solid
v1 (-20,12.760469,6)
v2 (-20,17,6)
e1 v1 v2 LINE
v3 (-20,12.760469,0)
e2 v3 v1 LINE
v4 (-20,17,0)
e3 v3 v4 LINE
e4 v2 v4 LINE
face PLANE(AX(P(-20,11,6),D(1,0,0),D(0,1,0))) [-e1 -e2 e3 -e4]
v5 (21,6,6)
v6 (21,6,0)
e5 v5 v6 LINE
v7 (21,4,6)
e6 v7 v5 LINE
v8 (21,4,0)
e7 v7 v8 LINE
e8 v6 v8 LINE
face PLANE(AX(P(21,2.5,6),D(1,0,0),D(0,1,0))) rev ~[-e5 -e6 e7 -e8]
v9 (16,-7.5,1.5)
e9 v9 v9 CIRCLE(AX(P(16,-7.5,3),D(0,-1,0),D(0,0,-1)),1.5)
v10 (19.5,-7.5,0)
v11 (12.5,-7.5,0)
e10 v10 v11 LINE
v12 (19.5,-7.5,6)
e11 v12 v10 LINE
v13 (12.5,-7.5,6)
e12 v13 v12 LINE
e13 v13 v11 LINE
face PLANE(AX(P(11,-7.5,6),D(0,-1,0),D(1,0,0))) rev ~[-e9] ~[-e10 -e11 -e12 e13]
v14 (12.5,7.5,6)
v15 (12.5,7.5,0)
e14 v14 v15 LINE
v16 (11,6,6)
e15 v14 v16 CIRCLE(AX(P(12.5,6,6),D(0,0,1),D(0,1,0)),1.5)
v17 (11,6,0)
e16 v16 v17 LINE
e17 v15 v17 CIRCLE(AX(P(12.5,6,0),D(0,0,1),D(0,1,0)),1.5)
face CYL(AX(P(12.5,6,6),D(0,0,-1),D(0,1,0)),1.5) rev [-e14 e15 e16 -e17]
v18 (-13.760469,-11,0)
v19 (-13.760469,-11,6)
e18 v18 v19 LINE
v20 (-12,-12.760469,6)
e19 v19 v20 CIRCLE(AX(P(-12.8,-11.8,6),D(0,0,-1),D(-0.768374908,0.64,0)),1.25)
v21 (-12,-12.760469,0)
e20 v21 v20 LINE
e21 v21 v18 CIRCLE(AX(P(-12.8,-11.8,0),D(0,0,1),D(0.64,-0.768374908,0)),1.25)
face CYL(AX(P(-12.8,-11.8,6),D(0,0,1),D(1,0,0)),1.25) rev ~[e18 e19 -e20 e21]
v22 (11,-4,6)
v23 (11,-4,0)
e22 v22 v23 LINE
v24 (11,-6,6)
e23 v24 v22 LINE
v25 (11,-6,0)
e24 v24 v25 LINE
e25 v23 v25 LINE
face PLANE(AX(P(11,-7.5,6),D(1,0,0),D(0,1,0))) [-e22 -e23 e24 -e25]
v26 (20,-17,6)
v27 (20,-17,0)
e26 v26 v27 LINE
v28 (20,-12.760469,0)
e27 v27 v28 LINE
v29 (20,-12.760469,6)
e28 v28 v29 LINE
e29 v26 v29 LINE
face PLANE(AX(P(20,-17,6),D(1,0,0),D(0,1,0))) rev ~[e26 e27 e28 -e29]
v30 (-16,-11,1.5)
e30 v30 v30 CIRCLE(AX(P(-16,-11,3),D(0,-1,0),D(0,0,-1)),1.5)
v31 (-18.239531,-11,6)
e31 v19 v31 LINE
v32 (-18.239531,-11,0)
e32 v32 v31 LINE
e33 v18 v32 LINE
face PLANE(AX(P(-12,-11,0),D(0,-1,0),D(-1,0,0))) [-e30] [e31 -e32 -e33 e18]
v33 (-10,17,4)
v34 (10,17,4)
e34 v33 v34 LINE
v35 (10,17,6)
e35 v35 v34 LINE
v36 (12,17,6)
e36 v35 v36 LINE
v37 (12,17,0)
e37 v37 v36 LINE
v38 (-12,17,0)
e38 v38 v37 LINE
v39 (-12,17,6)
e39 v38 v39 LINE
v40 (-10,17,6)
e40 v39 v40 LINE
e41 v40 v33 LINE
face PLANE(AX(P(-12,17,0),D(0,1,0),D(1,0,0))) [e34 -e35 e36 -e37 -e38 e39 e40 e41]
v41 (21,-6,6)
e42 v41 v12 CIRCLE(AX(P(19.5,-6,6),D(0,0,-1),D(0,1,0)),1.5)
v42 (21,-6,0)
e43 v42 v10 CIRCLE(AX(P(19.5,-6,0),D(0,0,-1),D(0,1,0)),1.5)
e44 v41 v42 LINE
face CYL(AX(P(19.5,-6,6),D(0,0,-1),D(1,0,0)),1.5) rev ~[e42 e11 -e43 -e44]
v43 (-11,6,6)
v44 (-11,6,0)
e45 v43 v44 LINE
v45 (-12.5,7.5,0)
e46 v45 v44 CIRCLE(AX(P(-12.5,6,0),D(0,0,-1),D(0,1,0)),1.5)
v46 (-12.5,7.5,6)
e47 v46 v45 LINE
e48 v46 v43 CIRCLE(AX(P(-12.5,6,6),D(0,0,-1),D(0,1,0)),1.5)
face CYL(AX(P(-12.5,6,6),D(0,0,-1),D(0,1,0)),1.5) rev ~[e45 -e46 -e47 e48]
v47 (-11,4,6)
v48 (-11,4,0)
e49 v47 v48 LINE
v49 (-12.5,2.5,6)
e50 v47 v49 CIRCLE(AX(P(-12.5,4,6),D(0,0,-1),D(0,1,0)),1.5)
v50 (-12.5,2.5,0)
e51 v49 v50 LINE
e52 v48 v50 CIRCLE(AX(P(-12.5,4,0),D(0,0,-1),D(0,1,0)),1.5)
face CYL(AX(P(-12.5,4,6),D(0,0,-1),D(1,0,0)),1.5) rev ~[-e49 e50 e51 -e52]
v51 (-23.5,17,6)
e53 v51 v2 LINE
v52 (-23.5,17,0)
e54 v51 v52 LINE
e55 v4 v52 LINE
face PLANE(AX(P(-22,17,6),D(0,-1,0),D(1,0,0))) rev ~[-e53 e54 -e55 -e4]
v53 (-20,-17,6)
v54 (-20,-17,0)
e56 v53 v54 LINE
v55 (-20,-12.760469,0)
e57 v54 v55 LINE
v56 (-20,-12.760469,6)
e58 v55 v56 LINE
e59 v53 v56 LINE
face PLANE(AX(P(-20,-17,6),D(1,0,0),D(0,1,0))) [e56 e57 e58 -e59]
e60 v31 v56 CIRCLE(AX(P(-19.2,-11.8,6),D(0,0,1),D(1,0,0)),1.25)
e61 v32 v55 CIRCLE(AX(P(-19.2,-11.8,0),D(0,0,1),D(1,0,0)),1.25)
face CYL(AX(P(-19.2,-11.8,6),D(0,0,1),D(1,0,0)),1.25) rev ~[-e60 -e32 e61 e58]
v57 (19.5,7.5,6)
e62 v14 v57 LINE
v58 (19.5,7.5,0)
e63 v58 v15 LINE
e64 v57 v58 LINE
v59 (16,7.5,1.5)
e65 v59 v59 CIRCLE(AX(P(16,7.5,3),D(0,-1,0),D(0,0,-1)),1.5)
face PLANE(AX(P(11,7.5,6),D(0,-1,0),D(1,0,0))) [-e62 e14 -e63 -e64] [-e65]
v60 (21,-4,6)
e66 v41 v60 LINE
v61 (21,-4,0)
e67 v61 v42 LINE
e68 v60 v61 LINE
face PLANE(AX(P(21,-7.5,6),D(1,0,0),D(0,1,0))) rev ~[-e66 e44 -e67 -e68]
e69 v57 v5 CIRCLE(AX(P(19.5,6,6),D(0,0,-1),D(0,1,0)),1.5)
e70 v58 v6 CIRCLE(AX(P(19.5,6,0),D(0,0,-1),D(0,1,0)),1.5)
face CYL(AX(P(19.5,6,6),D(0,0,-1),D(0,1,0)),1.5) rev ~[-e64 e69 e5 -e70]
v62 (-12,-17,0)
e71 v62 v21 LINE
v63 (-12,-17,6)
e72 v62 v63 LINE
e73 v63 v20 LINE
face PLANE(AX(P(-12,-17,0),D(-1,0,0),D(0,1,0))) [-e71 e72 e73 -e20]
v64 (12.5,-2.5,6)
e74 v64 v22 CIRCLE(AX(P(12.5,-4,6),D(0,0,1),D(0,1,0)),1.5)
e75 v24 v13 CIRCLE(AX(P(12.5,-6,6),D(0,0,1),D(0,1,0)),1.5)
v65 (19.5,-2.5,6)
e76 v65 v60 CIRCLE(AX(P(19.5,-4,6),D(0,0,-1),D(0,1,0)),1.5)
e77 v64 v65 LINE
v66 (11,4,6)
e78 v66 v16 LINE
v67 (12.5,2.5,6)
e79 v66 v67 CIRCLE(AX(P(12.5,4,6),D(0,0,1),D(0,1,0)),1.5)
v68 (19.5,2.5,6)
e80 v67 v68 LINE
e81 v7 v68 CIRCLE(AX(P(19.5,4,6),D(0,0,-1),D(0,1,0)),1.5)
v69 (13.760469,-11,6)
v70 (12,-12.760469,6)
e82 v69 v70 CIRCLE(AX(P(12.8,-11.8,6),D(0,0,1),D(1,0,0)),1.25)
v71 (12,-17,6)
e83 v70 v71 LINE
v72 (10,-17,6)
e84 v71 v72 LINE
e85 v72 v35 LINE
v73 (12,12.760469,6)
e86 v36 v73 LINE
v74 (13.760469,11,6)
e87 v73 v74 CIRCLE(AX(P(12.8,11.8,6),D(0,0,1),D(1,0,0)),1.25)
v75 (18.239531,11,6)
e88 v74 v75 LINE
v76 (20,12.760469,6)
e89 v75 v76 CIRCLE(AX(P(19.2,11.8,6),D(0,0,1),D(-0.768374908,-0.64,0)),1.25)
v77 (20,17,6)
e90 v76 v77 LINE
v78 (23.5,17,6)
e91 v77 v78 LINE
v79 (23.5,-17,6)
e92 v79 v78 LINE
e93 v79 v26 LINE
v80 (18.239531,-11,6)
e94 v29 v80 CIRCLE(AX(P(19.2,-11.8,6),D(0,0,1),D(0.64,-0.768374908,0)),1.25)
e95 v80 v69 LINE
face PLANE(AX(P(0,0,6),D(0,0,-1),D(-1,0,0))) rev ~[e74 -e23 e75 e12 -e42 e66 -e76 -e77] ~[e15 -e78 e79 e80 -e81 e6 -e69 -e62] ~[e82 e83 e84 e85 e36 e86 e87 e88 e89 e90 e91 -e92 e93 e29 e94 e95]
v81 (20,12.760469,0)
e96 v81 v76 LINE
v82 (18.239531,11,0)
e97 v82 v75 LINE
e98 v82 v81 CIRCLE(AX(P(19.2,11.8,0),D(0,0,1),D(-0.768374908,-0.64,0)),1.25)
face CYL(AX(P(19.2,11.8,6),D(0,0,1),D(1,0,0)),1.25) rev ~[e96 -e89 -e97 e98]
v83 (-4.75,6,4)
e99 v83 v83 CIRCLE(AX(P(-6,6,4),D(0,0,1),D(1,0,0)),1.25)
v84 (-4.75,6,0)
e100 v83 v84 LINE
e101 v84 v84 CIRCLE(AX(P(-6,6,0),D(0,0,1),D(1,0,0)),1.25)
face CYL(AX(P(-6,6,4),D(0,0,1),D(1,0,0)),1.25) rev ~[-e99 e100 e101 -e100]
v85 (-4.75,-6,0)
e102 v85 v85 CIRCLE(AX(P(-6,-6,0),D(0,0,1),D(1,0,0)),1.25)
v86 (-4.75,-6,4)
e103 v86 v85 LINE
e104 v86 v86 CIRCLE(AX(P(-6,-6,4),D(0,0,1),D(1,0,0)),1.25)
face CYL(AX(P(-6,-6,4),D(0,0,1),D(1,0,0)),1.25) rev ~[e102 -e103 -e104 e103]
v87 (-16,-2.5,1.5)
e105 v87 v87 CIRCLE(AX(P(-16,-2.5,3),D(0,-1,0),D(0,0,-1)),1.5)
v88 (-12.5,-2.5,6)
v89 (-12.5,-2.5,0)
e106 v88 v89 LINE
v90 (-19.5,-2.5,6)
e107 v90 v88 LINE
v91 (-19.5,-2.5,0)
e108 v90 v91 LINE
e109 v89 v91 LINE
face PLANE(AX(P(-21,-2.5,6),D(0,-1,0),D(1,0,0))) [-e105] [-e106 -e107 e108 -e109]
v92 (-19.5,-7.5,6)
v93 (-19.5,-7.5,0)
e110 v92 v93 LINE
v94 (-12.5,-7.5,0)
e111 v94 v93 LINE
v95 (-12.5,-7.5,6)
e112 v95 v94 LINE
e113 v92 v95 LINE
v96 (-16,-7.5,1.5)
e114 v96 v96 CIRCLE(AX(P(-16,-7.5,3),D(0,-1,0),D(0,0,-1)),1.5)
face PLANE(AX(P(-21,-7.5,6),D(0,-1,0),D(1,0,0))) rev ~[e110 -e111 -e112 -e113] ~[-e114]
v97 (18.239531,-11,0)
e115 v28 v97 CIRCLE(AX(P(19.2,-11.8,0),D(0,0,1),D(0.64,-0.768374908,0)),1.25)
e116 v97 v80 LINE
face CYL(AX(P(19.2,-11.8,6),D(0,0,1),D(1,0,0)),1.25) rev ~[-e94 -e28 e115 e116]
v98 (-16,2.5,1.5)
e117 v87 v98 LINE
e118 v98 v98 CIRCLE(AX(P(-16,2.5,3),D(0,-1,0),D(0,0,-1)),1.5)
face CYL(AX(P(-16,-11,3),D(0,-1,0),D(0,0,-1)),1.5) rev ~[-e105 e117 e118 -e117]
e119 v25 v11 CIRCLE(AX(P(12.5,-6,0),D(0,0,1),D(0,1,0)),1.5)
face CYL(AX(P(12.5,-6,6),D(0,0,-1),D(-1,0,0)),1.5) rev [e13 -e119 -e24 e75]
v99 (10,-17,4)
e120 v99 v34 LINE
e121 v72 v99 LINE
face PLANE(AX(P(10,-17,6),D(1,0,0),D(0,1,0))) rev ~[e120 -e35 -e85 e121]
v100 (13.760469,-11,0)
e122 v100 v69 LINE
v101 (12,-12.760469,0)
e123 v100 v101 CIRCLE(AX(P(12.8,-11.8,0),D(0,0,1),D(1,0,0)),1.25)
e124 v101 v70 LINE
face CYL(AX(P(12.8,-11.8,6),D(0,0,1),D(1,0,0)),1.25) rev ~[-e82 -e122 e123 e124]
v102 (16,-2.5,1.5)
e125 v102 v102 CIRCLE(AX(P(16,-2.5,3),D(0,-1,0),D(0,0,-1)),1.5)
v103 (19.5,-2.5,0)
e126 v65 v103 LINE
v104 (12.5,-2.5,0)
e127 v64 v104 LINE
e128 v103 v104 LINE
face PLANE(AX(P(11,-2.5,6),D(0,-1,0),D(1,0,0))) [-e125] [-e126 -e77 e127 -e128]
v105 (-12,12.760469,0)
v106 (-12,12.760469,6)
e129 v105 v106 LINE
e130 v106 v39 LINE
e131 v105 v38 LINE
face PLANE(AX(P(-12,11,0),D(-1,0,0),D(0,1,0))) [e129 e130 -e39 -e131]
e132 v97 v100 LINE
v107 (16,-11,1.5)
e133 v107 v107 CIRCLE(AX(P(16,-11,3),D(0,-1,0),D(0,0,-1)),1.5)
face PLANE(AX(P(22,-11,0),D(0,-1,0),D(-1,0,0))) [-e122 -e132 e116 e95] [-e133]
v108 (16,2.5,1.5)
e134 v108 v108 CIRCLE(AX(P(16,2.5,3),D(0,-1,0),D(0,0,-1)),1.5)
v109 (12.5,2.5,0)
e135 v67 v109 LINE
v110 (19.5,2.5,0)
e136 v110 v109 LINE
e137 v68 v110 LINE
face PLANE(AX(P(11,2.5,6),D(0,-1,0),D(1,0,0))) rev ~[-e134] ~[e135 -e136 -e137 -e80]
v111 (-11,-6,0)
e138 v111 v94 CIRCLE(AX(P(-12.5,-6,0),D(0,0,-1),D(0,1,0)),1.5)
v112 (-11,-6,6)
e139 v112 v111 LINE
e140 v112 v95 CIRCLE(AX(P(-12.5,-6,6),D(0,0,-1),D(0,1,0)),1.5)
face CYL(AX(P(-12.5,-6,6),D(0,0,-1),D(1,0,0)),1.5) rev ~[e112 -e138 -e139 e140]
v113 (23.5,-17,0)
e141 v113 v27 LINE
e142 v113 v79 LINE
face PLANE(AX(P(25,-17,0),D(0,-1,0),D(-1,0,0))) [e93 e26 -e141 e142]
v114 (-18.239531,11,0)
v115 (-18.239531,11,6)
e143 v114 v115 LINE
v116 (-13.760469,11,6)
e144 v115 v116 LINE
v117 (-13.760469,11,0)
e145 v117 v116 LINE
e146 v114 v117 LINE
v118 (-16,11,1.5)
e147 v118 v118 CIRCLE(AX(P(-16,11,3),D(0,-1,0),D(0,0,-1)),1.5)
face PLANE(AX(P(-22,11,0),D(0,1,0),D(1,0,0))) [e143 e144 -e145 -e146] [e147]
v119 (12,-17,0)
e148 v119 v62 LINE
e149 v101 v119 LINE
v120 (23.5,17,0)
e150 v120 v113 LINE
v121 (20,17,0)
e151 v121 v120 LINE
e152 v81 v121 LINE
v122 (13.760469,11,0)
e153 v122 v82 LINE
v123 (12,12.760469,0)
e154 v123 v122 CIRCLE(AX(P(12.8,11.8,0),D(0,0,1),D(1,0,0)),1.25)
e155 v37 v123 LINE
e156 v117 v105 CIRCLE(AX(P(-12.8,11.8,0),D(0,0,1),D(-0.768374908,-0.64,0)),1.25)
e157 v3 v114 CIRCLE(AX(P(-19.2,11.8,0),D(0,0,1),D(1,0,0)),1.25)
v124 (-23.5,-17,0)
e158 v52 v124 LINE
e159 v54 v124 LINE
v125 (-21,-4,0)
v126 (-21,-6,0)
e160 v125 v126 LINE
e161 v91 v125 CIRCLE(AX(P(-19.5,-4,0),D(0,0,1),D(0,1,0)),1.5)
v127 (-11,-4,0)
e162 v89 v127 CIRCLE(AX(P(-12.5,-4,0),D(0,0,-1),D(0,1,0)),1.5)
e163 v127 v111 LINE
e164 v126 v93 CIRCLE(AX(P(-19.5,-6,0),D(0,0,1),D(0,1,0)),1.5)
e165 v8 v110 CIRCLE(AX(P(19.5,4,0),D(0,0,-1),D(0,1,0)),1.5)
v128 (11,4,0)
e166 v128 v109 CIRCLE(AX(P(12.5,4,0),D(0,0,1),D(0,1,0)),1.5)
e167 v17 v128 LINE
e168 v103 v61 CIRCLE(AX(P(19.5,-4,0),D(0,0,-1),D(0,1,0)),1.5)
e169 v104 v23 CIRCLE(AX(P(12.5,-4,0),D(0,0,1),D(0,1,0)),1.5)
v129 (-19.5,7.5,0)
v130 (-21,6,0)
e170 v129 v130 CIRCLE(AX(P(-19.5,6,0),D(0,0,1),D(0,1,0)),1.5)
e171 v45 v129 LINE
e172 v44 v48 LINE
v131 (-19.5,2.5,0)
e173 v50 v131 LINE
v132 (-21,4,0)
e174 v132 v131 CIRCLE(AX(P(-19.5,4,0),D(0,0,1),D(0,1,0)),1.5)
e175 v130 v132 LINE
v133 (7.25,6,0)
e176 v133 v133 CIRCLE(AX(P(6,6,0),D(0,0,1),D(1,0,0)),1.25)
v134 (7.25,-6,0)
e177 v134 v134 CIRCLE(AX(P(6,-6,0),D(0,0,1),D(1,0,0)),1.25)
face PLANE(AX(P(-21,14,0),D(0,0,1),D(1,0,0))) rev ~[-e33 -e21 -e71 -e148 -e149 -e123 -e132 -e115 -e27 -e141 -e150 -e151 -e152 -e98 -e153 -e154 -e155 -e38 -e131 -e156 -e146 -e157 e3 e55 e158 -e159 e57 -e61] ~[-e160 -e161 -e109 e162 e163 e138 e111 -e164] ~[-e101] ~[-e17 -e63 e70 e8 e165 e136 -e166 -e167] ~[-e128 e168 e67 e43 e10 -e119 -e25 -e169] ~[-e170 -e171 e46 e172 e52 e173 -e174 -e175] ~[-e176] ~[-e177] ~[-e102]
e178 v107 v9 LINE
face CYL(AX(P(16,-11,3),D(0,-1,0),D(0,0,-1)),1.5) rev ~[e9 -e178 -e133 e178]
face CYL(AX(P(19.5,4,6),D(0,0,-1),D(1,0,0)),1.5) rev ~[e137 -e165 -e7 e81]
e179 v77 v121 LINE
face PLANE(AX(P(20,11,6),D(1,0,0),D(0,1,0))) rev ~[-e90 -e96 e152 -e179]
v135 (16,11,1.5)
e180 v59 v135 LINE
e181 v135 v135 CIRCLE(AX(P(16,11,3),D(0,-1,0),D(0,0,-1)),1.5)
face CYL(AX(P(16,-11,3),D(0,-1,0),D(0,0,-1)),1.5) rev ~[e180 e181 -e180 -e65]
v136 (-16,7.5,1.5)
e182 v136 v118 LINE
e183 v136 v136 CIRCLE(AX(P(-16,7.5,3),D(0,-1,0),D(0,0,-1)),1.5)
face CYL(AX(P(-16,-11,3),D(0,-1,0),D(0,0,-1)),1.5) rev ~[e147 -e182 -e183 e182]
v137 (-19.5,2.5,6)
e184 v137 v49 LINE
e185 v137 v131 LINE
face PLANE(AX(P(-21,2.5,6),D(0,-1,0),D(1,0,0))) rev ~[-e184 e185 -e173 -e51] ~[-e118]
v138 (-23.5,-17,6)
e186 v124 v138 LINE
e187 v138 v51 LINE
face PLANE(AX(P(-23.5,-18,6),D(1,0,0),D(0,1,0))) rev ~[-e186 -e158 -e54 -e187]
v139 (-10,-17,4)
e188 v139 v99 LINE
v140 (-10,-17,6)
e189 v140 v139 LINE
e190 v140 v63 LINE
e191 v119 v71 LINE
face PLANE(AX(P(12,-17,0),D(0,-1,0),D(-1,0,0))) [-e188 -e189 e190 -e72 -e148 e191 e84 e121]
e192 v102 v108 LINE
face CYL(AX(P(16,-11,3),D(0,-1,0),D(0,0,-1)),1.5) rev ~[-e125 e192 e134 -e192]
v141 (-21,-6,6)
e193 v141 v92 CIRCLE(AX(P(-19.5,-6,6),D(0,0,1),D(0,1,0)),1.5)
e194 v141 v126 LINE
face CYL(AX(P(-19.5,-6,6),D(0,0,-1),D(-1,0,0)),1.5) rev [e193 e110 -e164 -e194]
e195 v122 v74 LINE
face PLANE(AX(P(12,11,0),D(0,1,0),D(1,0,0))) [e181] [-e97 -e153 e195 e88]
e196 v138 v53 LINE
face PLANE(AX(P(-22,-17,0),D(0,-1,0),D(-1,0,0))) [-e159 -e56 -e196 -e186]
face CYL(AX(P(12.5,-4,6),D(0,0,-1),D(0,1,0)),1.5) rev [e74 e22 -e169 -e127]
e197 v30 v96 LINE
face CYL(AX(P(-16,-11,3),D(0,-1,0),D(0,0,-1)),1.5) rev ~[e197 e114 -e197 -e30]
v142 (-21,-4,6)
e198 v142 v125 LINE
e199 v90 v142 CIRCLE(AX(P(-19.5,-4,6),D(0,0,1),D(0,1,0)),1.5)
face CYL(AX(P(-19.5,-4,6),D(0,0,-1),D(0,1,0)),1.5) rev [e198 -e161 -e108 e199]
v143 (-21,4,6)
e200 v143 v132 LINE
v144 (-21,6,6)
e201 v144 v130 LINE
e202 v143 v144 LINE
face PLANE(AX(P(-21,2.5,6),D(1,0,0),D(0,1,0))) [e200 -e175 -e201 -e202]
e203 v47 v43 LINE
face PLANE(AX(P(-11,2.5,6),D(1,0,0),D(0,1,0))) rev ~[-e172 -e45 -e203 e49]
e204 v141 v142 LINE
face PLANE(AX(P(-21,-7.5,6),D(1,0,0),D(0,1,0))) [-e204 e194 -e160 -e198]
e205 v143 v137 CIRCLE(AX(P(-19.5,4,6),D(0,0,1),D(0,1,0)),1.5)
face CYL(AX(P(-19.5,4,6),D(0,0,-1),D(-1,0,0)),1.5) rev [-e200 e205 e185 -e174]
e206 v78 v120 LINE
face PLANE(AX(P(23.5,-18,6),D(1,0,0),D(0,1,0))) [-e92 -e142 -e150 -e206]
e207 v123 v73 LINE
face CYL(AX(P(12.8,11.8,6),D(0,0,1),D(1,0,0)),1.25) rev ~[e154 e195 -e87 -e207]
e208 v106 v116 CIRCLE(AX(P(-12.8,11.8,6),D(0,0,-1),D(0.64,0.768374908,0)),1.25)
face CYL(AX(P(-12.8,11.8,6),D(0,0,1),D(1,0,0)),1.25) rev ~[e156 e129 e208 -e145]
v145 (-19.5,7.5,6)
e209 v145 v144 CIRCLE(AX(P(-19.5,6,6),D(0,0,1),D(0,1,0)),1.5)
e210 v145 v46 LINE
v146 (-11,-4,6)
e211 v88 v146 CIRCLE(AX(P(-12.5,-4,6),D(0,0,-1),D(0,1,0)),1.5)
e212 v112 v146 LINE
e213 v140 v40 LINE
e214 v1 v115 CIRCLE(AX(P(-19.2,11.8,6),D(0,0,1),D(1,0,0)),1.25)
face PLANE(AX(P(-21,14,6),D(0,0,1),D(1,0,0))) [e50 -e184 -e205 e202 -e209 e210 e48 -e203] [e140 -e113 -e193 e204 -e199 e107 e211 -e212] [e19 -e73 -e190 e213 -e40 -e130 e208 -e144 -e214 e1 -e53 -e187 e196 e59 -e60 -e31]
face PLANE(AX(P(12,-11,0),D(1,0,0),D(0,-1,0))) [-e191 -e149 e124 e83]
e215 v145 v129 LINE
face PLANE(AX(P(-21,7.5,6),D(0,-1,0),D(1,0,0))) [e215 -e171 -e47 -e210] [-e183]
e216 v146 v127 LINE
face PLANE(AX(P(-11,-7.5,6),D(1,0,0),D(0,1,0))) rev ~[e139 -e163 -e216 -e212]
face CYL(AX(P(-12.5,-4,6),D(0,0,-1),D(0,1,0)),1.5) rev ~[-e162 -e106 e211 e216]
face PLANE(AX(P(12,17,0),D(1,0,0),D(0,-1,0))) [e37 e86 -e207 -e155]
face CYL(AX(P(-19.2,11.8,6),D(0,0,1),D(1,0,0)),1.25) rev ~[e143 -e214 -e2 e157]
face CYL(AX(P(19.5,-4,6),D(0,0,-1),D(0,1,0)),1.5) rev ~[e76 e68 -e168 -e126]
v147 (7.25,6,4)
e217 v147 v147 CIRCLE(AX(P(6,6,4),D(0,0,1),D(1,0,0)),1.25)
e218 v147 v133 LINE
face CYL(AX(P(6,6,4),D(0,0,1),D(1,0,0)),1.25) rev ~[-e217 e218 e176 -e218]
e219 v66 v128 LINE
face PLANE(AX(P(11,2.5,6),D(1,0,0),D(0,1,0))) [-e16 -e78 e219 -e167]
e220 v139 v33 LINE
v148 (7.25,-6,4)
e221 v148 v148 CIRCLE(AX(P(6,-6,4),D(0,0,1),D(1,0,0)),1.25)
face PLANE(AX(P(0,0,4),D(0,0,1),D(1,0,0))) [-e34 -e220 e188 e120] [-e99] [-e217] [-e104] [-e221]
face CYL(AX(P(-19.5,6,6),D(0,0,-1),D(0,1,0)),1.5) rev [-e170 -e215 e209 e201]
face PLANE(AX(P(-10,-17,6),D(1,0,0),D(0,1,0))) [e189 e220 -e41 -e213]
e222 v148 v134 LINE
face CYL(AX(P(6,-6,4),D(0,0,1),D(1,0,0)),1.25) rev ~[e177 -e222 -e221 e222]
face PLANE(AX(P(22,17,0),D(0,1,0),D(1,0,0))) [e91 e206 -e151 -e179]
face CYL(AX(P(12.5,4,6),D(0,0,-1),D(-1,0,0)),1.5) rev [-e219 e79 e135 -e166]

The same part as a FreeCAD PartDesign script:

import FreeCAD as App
import Part
import Sketcher
from FreeCAD import Vector
Q = App.Units.Quantity


def edges_at(feature, points):
    """Names of the edges that pass closest to the given points."""
    edges = feature.Shape.Edges
    near = lambda p: min(range(len(edges)), key=lambda i: edges[i].distToShape(Part.Vertex(*p))[0])
    return sorted({f"Edge{near(p) + 1}" for p in points})

doc = App.newDocument("Part")
params = doc.addObject("Spreadsheet::Sheet", "Params")
for row, (alias, value) in enumerate([
    ("sketch1_width", "3 mm"),
    ("sketch1_width2", "10 mm"),
    ("sketch1_width3", "24 mm"),
    ("sketch1_height", "34 mm"),
    ("sketch1_height2", "6 mm"),
    ("pad1_length", "6 mm"),
    ("sketch2_width", "10 mm"),
    ("sketch2_height", "5 mm"),
    ("sketch3_diameter", "3 mm"),
    ("sketch4_width", "20 mm"),
    ("sketch4_height", "34 mm"),
    ("pocket3_length", "2 mm"),
    ("sketch5_diameter", "2.5 mm"),
    ("fillet_radius", "1.5 mm"),
    ("sketch6_height", "35 mm"),
    ("sketch6_width", "1.5 mm"),
    ("sketch7_width", "2 mm"),
    ("sketch7_height", "6 mm"),
    ("pad2_length", "6 mm"),
    ("sketch8_diameter", "2.5 mm"),
], start=1):
    params.set(f"A{row}", alias)
    params.set(f"B{row}", "=" + value)
    params.setAlias(f"B{row}", alias)

body = doc.addObject("PartDesign::Body", "Body")

sketch1 = body.newObject("Sketcher::SketchObject", "Sketch")
sketch1.AttachmentSupport = (doc.getObject("XY_Plane"), [""])
sketch1.MapMode = "FlatFace"
sketch1.addGeometry(Part.LineSegment(Vector(-25, 17, 0), Vector(-25, -17, 0)), False)
sketch1.addGeometry(Part.LineSegment(Vector(-25, -17, 0), Vector(-22, -17, 0)), False)
sketch1.addGeometry(Part.LineSegment(Vector(-22, -17, 0), Vector(-22, -11, 0)), False)
sketch1.addGeometry(Part.LineSegment(Vector(-22, -11, 0), Vector(-12, -11, 0)), False)
sketch1.addGeometry(Part.LineSegment(Vector(-12, -11, 0), Vector(-12, -17, 0)), False)
sketch1.addGeometry(Part.LineSegment(Vector(-12, -17, 0), Vector(12, -17, 0)), False)
sketch1.addGeometry(Part.LineSegment(Vector(12, -17, 0), Vector(12, -11, 0)), False)
sketch1.addGeometry(Part.LineSegment(Vector(12, -11, 0), Vector(22, -11, 0)), False)
sketch1.addGeometry(Part.LineSegment(Vector(22, -11, 0), Vector(22, -17, 0)), False)
sketch1.addGeometry(Part.LineSegment(Vector(22, -17, 0), Vector(25, -17, 0)), False)
sketch1.addGeometry(Part.LineSegment(Vector(25, -17, 0), Vector(25, 17, 0)), False)
sketch1.addGeometry(Part.LineSegment(Vector(25, 17, 0), Vector(22, 17, 0)), False)
sketch1.addGeometry(Part.LineSegment(Vector(22, 17, 0), Vector(22, 11, 0)), False)
sketch1.addGeometry(Part.LineSegment(Vector(22, 11, 0), Vector(12, 11, 0)), False)
sketch1.addGeometry(Part.LineSegment(Vector(12, 11, 0), Vector(12, 17, 0)), False)
sketch1.addGeometry(Part.LineSegment(Vector(12, 17, 0), Vector(-12, 17, 0)), False)
sketch1.addGeometry(Part.LineSegment(Vector(-12, 17, 0), Vector(-12, 11, 0)), False)
sketch1.addGeometry(Part.LineSegment(Vector(-12, 11, 0), Vector(-22, 11, 0)), False)
sketch1.addGeometry(Part.LineSegment(Vector(-22, 11, 0), Vector(-22, 17, 0)), False)
sketch1.addGeometry(Part.LineSegment(Vector(-22, 17, 0), Vector(-25, 17, 0)), False)
sketch1.addConstraint(Sketcher.Constraint("Coincident", 0, 2, 1, 1))
sketch1.addConstraint(Sketcher.Constraint("Coincident", 1, 2, 2, 1))
sketch1.addConstraint(Sketcher.Constraint("Coincident", 2, 2, 3, 1))
sketch1.addConstraint(Sketcher.Constraint("Coincident", 3, 2, 4, 1))
sketch1.addConstraint(Sketcher.Constraint("Coincident", 4, 2, 5, 1))
sketch1.addConstraint(Sketcher.Constraint("Coincident", 5, 2, 6, 1))
sketch1.addConstraint(Sketcher.Constraint("Coincident", 6, 2, 7, 1))
sketch1.addConstraint(Sketcher.Constraint("Coincident", 7, 2, 8, 1))
sketch1.addConstraint(Sketcher.Constraint("Coincident", 8, 2, 9, 1))
sketch1.addConstraint(Sketcher.Constraint("Coincident", 9, 2, 10, 1))
sketch1.addConstraint(Sketcher.Constraint("Coincident", 10, 2, 11, 1))
sketch1.addConstraint(Sketcher.Constraint("Coincident", 11, 2, 12, 1))
sketch1.addConstraint(Sketcher.Constraint("Coincident", 12, 2, 13, 1))
sketch1.addConstraint(Sketcher.Constraint("Coincident", 13, 2, 14, 1))
sketch1.addConstraint(Sketcher.Constraint("Coincident", 14, 2, 15, 1))
sketch1.addConstraint(Sketcher.Constraint("Coincident", 15, 2, 16, 1))
sketch1.addConstraint(Sketcher.Constraint("Coincident", 16, 2, 17, 1))
sketch1.addConstraint(Sketcher.Constraint("Coincident", 17, 2, 18, 1))
sketch1.addConstraint(Sketcher.Constraint("Coincident", 18, 2, 19, 1))
sketch1.addConstraint(Sketcher.Constraint("Coincident", 19, 2, 0, 1))
sketch1.addConstraint(Sketcher.Constraint("Vertical", 0))
sketch1.addConstraint(Sketcher.Constraint("Horizontal", 1))
sketch1.addConstraint(Sketcher.Constraint("Vertical", 2))
sketch1.addConstraint(Sketcher.Constraint("Horizontal", 3))
sketch1.addConstraint(Sketcher.Constraint("Vertical", 4))
sketch1.addConstraint(Sketcher.Constraint("Horizontal", 5))
sketch1.addConstraint(Sketcher.Constraint("Vertical", 6))
sketch1.addConstraint(Sketcher.Constraint("Horizontal", 7))
sketch1.addConstraint(Sketcher.Constraint("Vertical", 8))
sketch1.addConstraint(Sketcher.Constraint("Horizontal", 9))
sketch1.addConstraint(Sketcher.Constraint("Vertical", 10))
sketch1.addConstraint(Sketcher.Constraint("Horizontal", 11))
sketch1.addConstraint(Sketcher.Constraint("Vertical", 12))
sketch1.addConstraint(Sketcher.Constraint("Horizontal", 13))
sketch1.addConstraint(Sketcher.Constraint("Vertical", 14))
sketch1.addConstraint(Sketcher.Constraint("Horizontal", 15))
sketch1.addConstraint(Sketcher.Constraint("Vertical", 16))
sketch1.addConstraint(Sketcher.Constraint("Horizontal", 17))
sketch1.addConstraint(Sketcher.Constraint("Vertical", 18))
sketch1.addConstraint(Sketcher.Constraint("Horizontal", 19))
sketch1.addConstraint(Sketcher.Constraint("Symmetric", 0, 2, 10, 2, -1, 1))
sketch1.addConstraint(Sketcher.Constraint("Symmetric", 2, 2, 12, 2, -1, 1))
sketch1.addConstraint(Sketcher.Constraint("Symmetric", 4, 2, 14, 2, -1, 1))
sketch1.addConstraint(Sketcher.Constraint("Symmetric", 6, 2, 16, 2, -1, 1))
sketch1.addConstraint(Sketcher.Constraint("Symmetric", 8, 2, 18, 2, -1, 1))
sketch1.addConstraint(Sketcher.Constraint("Symmetric", 3, 2, 6, 2, -2))
sketch1.addConstraint(Sketcher.Constraint("Symmetric", 1, 2, 8, 2, -2))
sketch1.addConstraint(Sketcher.Constraint("Horizontal", 1, 2, 4, 2))
sketch1.addConstraint(Sketcher.Constraint("DistanceX", 1, 1, 1, 2, Q("3 mm")))
sketch1.addConstraint(Sketcher.Constraint("DistanceX", 3, 1, 3, 2, Q("10 mm")))
sketch1.addConstraint(Sketcher.Constraint("DistanceX", 5, 1, 5, 2, Q("24 mm")))
sketch1.addConstraint(Sketcher.Constraint("DistanceY", 0, 2, 0, 1, Q("34 mm")))
sketch1.addConstraint(Sketcher.Constraint("DistanceY", 2, 1, 2, 2, Q("6 mm")))
sketch1.setExpression("Constraints[48]", "Params.sketch1_width")
sketch1.setExpression("Constraints[49]", "Params.sketch1_width2")
sketch1.setExpression("Constraints[50]", "Params.sketch1_width3")
sketch1.setExpression("Constraints[51]", "Params.sketch1_height")
sketch1.setExpression("Constraints[52]", "Params.sketch1_height2")
pad1 = body.newObject("PartDesign::Pad", "Pad")
pad1.Profile = sketch1
pad1.setExpression("Length", "Params.pad1_length")

sketch2 = body.newObject("Sketcher::SketchObject", "Sketch001")
sketch2.AttachmentSupport = (doc.getObject("XY_Plane"), [""])
sketch2.MapMode = "FlatFace"
sketch2.AttachmentOffset = App.Placement(Vector(0, 0, 6), App.Rotation())
sketch2.addGeometry(Part.LineSegment(Vector(-21, 7.5, 0), Vector(-21, 2.5, 0)), False)
sketch2.addGeometry(Part.LineSegment(Vector(-21, 2.5, 0), Vector(-11, 2.5, 0)), False)
sketch2.addGeometry(Part.LineSegment(Vector(-11, 2.5, 0), Vector(-11, 7.5, 0)), False)
sketch2.addGeometry(Part.LineSegment(Vector(-11, 7.5, 0), Vector(-21, 7.5, 0)), False)
sketch2.addGeometry(Part.LineSegment(Vector(-21, -2.5, 0), Vector(-21, -7.5, 0)), False)
sketch2.addGeometry(Part.LineSegment(Vector(-21, -7.5, 0), Vector(-11, -7.5, 0)), False)
sketch2.addGeometry(Part.LineSegment(Vector(-11, -7.5, 0), Vector(-11, -2.5, 0)), False)
sketch2.addGeometry(Part.LineSegment(Vector(-11, -2.5, 0), Vector(-21, -2.5, 0)), False)
sketch2.addGeometry(Part.LineSegment(Vector(11, -2.5, 0), Vector(11, -7.5, 0)), False)
sketch2.addGeometry(Part.LineSegment(Vector(11, -7.5, 0), Vector(21, -7.5, 0)), False)
sketch2.addGeometry(Part.LineSegment(Vector(21, -7.5, 0), Vector(21, -2.5, 0)), False)
sketch2.addGeometry(Part.LineSegment(Vector(21, -2.5, 0), Vector(11, -2.5, 0)), False)
sketch2.addGeometry(Part.LineSegment(Vector(11, 7.5, 0), Vector(11, 2.5, 0)), False)
sketch2.addGeometry(Part.LineSegment(Vector(11, 2.5, 0), Vector(21, 2.5, 0)), False)
sketch2.addGeometry(Part.LineSegment(Vector(21, 2.5, 0), Vector(21, 7.5, 0)), False)
sketch2.addGeometry(Part.LineSegment(Vector(21, 7.5, 0), Vector(11, 7.5, 0)), False)
sketch2.addConstraint(Sketcher.Constraint("Coincident", 0, 2, 1, 1))
sketch2.addConstraint(Sketcher.Constraint("Coincident", 1, 2, 2, 1))
sketch2.addConstraint(Sketcher.Constraint("Coincident", 2, 2, 3, 1))
sketch2.addConstraint(Sketcher.Constraint("Coincident", 3, 2, 0, 1))
sketch2.addConstraint(Sketcher.Constraint("Coincident", 4, 2, 5, 1))
sketch2.addConstraint(Sketcher.Constraint("Coincident", 5, 2, 6, 1))
sketch2.addConstraint(Sketcher.Constraint("Coincident", 6, 2, 7, 1))
sketch2.addConstraint(Sketcher.Constraint("Coincident", 7, 2, 4, 1))
sketch2.addConstraint(Sketcher.Constraint("Coincident", 8, 2, 9, 1))
sketch2.addConstraint(Sketcher.Constraint("Coincident", 9, 2, 10, 1))
sketch2.addConstraint(Sketcher.Constraint("Coincident", 10, 2, 11, 1))
sketch2.addConstraint(Sketcher.Constraint("Coincident", 11, 2, 8, 1))
sketch2.addConstraint(Sketcher.Constraint("Coincident", 12, 2, 13, 1))
sketch2.addConstraint(Sketcher.Constraint("Coincident", 13, 2, 14, 1))
sketch2.addConstraint(Sketcher.Constraint("Coincident", 14, 2, 15, 1))
sketch2.addConstraint(Sketcher.Constraint("Coincident", 15, 2, 12, 1))
sketch2.addConstraint(Sketcher.Constraint("Vertical", 0))
sketch2.addConstraint(Sketcher.Constraint("Horizontal", 1))
sketch2.addConstraint(Sketcher.Constraint("Vertical", 2))
sketch2.addConstraint(Sketcher.Constraint("Horizontal", 3))
sketch2.addConstraint(Sketcher.Constraint("Vertical", 4))
sketch2.addConstraint(Sketcher.Constraint("Horizontal", 5))
sketch2.addConstraint(Sketcher.Constraint("Vertical", 6))
sketch2.addConstraint(Sketcher.Constraint("Horizontal", 7))
sketch2.addConstraint(Sketcher.Constraint("Vertical", 8))
sketch2.addConstraint(Sketcher.Constraint("Horizontal", 9))
sketch2.addConstraint(Sketcher.Constraint("Vertical", 10))
sketch2.addConstraint(Sketcher.Constraint("Horizontal", 11))
sketch2.addConstraint(Sketcher.Constraint("Vertical", 12))
sketch2.addConstraint(Sketcher.Constraint("Horizontal", 13))
sketch2.addConstraint(Sketcher.Constraint("Vertical", 14))
sketch2.addConstraint(Sketcher.Constraint("Horizontal", 15))
sketch2.addConstraint(Sketcher.Constraint("Symmetric", 2, 2, 8, 2, -1, 1))
sketch2.addConstraint(Sketcher.Constraint("Symmetric", 0, 2, 10, 2, -1, 1))
sketch2.addConstraint(Sketcher.Constraint("Symmetric", 6, 2, 12, 2, -1, 1))
sketch2.addConstraint(Sketcher.Constraint("Symmetric", 4, 2, 14, 2, -1, 1))
sketch2.addConstraint(Sketcher.Constraint("Symmetric", 5, 2, 8, 2, -2))
sketch2.addConstraint(Sketcher.Constraint("Symmetric", 7, 2, 10, 2, -2))
sketch2.addConstraint(Sketcher.Constraint("DistanceX", 1, 1, 1, 2, Q("10 mm")))
sketch2.addConstraint(Sketcher.Constraint("DistanceY", 0, 2, 0, 1, Q("5 mm")))
sketch2.addConstraint(Sketcher.Constraint("DistanceX", 0, 2, -1, 1, Q("21 mm")))
sketch2.addConstraint(Sketcher.Constraint("DistanceY", 4, 2, 0, 2, Q("10 mm")))
sketch2.setExpression("Constraints[38]", "Params.sketch2_width")
sketch2.setExpression("Constraints[39]", "Params.sketch2_height")
pocket1 = body.newObject("PartDesign::Pocket", "Pocket")
pocket1.Profile = sketch2
pocket1.Type = "ThroughAll"

sketch3 = body.newObject("Sketcher::SketchObject", "Sketch002")
sketch3.AttachmentSupport = (doc.getObject("XZ_Plane"), [""])
sketch3.MapMode = "FlatFace"
sketch3.AttachmentOffset = App.Placement(Vector(0, 0, 11), App.Rotation())
sketch3.addGeometry(Part.Circle(Vector(-16, 3, 0), Vector(0, 0, 1), 1.5), False)
sketch3.addGeometry(Part.Circle(Vector(16, 3, 0), Vector(0, 0, 1), 1.5), False)
sketch3.addConstraint(Sketcher.Constraint("Equal", 0, 1))
sketch3.addConstraint(Sketcher.Constraint("Symmetric", 0, 3, 1, 3, -2))
sketch3.addConstraint(Sketcher.Constraint("Diameter", 0, Q("3 mm")))
sketch3.addConstraint(Sketcher.Constraint("DistanceX", 0, 3, -1, 1, Q("16 mm")))
sketch3.addConstraint(Sketcher.Constraint("DistanceY", -1, 1, 0, 3, Q("3 mm")))
sketch3.setExpression("Constraints[2]", "Params.sketch3_diameter")
pocket2 = body.newObject("PartDesign::Pocket", "Pocket001")
pocket2.Profile = sketch3
pocket2.Type = "ThroughAll"

sketch4 = body.newObject("Sketcher::SketchObject", "Sketch003")
sketch4.AttachmentSupport = (doc.getObject("XY_Plane"), [""])
sketch4.MapMode = "FlatFace"
sketch4.AttachmentOffset = App.Placement(Vector(0, 0, 6), App.Rotation())
sketch4.addGeometry(Part.LineSegment(Vector(-10, 17, 0), Vector(-10, -17, 0)), False)
sketch4.addGeometry(Part.LineSegment(Vector(-10, -17, 0), Vector(10, -17, 0)), False)
sketch4.addGeometry(Part.LineSegment(Vector(10, -17, 0), Vector(10, 17, 0)), False)
sketch4.addGeometry(Part.LineSegment(Vector(10, 17, 0), Vector(-10, 17, 0)), False)
sketch4.addConstraint(Sketcher.Constraint("Coincident", 0, 2, 1, 1))
sketch4.addConstraint(Sketcher.Constraint("Coincident", 1, 2, 2, 1))
sketch4.addConstraint(Sketcher.Constraint("Coincident", 2, 2, 3, 1))
sketch4.addConstraint(Sketcher.Constraint("Coincident", 3, 2, 0, 1))
sketch4.addConstraint(Sketcher.Constraint("Vertical", 0))
sketch4.addConstraint(Sketcher.Constraint("Horizontal", 1))
sketch4.addConstraint(Sketcher.Constraint("Vertical", 2))
sketch4.addConstraint(Sketcher.Constraint("Horizontal", 3))
sketch4.addConstraint(Sketcher.Constraint("Symmetric", 0, 2, 2, 2, -1, 1))
sketch4.addConstraint(Sketcher.Constraint("DistanceX", 1, 1, 1, 2, Q("20 mm")))
sketch4.addConstraint(Sketcher.Constraint("DistanceY", 0, 2, 0, 1, Q("34 mm")))
sketch4.setExpression("Constraints[9]", "Params.sketch4_width")
sketch4.setExpression("Constraints[10]", "Params.sketch4_height")
pocket3 = body.newObject("PartDesign::Pocket", "Pocket002")
pocket3.Profile = sketch4
pocket3.setExpression("Length", "Params.pocket3_length")

sketch5 = body.newObject("Sketcher::SketchObject", "Sketch004")
sketch5.AttachmentSupport = (doc.getObject("XY_Plane"), [""])
sketch5.MapMode = "FlatFace"
sketch5.AttachmentOffset = App.Placement(Vector(0, 0, 4), App.Rotation())
sketch5.addGeometry(Part.Circle(Vector(-6, 6, 0), Vector(0, 0, 1), 1.25), False)
sketch5.addGeometry(Part.Circle(Vector(6, 6, 0), Vector(0, 0, 1), 1.25), False)
sketch5.addGeometry(Part.Circle(Vector(-6, -6, 0), Vector(0, 0, 1), 1.25), False)
sketch5.addGeometry(Part.Circle(Vector(6, -6, 0), Vector(0, 0, 1), 1.25), False)
sketch5.addConstraint(Sketcher.Constraint("Equal", 0, 1))
sketch5.addConstraint(Sketcher.Constraint("Equal", 1, 2))
sketch5.addConstraint(Sketcher.Constraint("Equal", 2, 3))
sketch5.addConstraint(Sketcher.Constraint("Symmetric", 1, 3, 2, 3, -1, 1))
sketch5.addConstraint(Sketcher.Constraint("Symmetric", 0, 3, 3, 3, -1, 1))
sketch5.addConstraint(Sketcher.Constraint("Symmetric", 0, 3, 1, 3, -2))
sketch5.addConstraint(Sketcher.Constraint("Diameter", 0, Q("2.5 mm")))
sketch5.addConstraint(Sketcher.Constraint("DistanceX", 0, 3, -1, 1, Q("6 mm")))
sketch5.addConstraint(Sketcher.Constraint("DistanceY", -1, 1, 0, 3, Q("6 mm")))
sketch5.setExpression("Constraints[6]", "Params.sketch5_diameter")
pocket4 = body.newObject("PartDesign::Pocket", "Pocket003")
pocket4.Profile = sketch5
pocket4.Type = "ThroughAll"
doc.recompute()

fillet = body.newObject("PartDesign::Fillet", "Fillet")
fillet.Base = (pocket4, edges_at(pocket4, [
    (-11, 7.5, 3),
    (-11, 2.5, 3),
    (-21, 2.5, 3),
    (-21, 7.5, 3),
    (-21, -7.5, 3),
    (-21, -2.5, 3),
    (-11, -2.5, 3),
    (-11, -7.5, 3),
    (21, -2.5, 3),
    (21, -7.5, 3),
    (11, -7.5, 3),
    (11, -2.5, 3),
    (21, 7.5, 3),
    (21, 2.5, 3),
    (11, 2.5, 3),
    (11, 7.5, 3),
]))
fillet.setExpression("Radius", "Params.fillet_radius")

sketch6 = body.newObject("Sketcher::SketchObject", "Sketch005")
sketch6.AttachmentSupport = (doc.getObject("XY_Plane"), [""])
sketch6.MapMode = "FlatFace"
sketch6.AttachmentOffset = App.Placement(Vector(0, 0, 6), App.Rotation())
sketch6.addGeometry(Part.LineSegment(Vector(-25, 17, 0), Vector(-25, -18, 0)), False)
sketch6.addGeometry(Part.LineSegment(Vector(-25, -18, 0), Vector(-23.5, -18, 0)), False)
sketch6.addGeometry(Part.LineSegment(Vector(-23.5, -18, 0), Vector(-23.5, 17, 0)), False)
sketch6.addGeometry(Part.LineSegment(Vector(-23.5, 17, 0), Vector(-25, 17, 0)), False)
sketch6.addGeometry(Part.LineSegment(Vector(23.5, 17, 0), Vector(23.5, -18, 0)), False)
sketch6.addGeometry(Part.LineSegment(Vector(23.5, -18, 0), Vector(25, -18, 0)), False)
sketch6.addGeometry(Part.LineSegment(Vector(25, -18, 0), Vector(25, 17, 0)), False)
sketch6.addGeometry(Part.LineSegment(Vector(25, 17, 0), Vector(23.5, 17, 0)), False)
sketch6.addConstraint(Sketcher.Constraint("Coincident", 0, 2, 1, 1))
sketch6.addConstraint(Sketcher.Constraint("Coincident", 1, 2, 2, 1))
sketch6.addConstraint(Sketcher.Constraint("Coincident", 2, 2, 3, 1))
sketch6.addConstraint(Sketcher.Constraint("Coincident", 3, 2, 0, 1))
sketch6.addConstraint(Sketcher.Constraint("Coincident", 4, 2, 5, 1))
sketch6.addConstraint(Sketcher.Constraint("Coincident", 5, 2, 6, 1))
sketch6.addConstraint(Sketcher.Constraint("Coincident", 6, 2, 7, 1))
sketch6.addConstraint(Sketcher.Constraint("Coincident", 7, 2, 4, 1))
sketch6.addConstraint(Sketcher.Constraint("Vertical", 0))
sketch6.addConstraint(Sketcher.Constraint("Horizontal", 1))
sketch6.addConstraint(Sketcher.Constraint("Vertical", 2))
sketch6.addConstraint(Sketcher.Constraint("Horizontal", 3))
sketch6.addConstraint(Sketcher.Constraint("Vertical", 4))
sketch6.addConstraint(Sketcher.Constraint("Horizontal", 5))
sketch6.addConstraint(Sketcher.Constraint("Vertical", 6))
sketch6.addConstraint(Sketcher.Constraint("Horizontal", 7))
sketch6.addConstraint(Sketcher.Constraint("Symmetric", 1, 2, 4, 2, -2))
sketch6.addConstraint(Sketcher.Constraint("Symmetric", 3, 2, 6, 2, -2))
sketch6.addConstraint(Sketcher.Constraint("DistanceY", 0, 2, 0, 1, Q("35 mm")))
sketch6.addConstraint(Sketcher.Constraint("DistanceX", 1, 1, 1, 2, Q("1.5 mm")))
sketch6.addConstraint(Sketcher.Constraint("DistanceX", 0, 2, -1, 1, Q("25 mm")))
sketch6.addConstraint(Sketcher.Constraint("DistanceY", 0, 2, -1, 1, Q("18 mm")))
sketch6.setExpression("Constraints[18]", "Params.sketch6_height")
sketch6.setExpression("Constraints[19]", "Params.sketch6_width")
pocket5 = body.newObject("PartDesign::Pocket", "Pocket004")
pocket5.Profile = sketch6
pocket5.Type = "ThroughAll"

sketch7 = body.newObject("Sketcher::SketchObject", "Sketch006")
sketch7.AttachmentSupport = (doc.getObject("XY_Plane"), [""])
sketch7.MapMode = "FlatFace"
sketch7.AttachmentOffset = App.Placement(Vector(0, 0, 6), App.Rotation())
sketch7.addGeometry(Part.LineSegment(Vector(-22, 17, 0), Vector(-22, 11, 0)), False)
sketch7.addGeometry(Part.LineSegment(Vector(-22, 11, 0), Vector(-20, 11, 0)), False)
sketch7.addGeometry(Part.LineSegment(Vector(-20, 11, 0), Vector(-20, 17, 0)), False)
sketch7.addGeometry(Part.LineSegment(Vector(-20, 17, 0), Vector(-22, 17, 0)), False)
sketch7.addGeometry(Part.LineSegment(Vector(20, 17, 0), Vector(20, 11, 0)), False)
sketch7.addGeometry(Part.LineSegment(Vector(20, 11, 0), Vector(22, 11, 0)), False)
sketch7.addGeometry(Part.LineSegment(Vector(22, 11, 0), Vector(22, 17, 0)), False)
sketch7.addGeometry(Part.LineSegment(Vector(22, 17, 0), Vector(20, 17, 0)), False)
sketch7.addGeometry(Part.LineSegment(Vector(20, -11, 0), Vector(20, -17, 0)), False)
sketch7.addGeometry(Part.LineSegment(Vector(20, -17, 0), Vector(22, -17, 0)), False)
sketch7.addGeometry(Part.LineSegment(Vector(22, -17, 0), Vector(22, -11, 0)), False)
sketch7.addGeometry(Part.LineSegment(Vector(22, -11, 0), Vector(20, -11, 0)), False)
sketch7.addGeometry(Part.LineSegment(Vector(-22, -11, 0), Vector(-22, -17, 0)), False)
sketch7.addGeometry(Part.LineSegment(Vector(-22, -17, 0), Vector(-20, -17, 0)), False)
sketch7.addGeometry(Part.LineSegment(Vector(-20, -17, 0), Vector(-20, -11, 0)), False)
sketch7.addGeometry(Part.LineSegment(Vector(-20, -11, 0), Vector(-22, -11, 0)), False)
sketch7.addConstraint(Sketcher.Constraint("Coincident", 0, 2, 1, 1))
sketch7.addConstraint(Sketcher.Constraint("Coincident", 1, 2, 2, 1))
sketch7.addConstraint(Sketcher.Constraint("Coincident", 2, 2, 3, 1))
sketch7.addConstraint(Sketcher.Constraint("Coincident", 3, 2, 0, 1))
sketch7.addConstraint(Sketcher.Constraint("Coincident", 4, 2, 5, 1))
sketch7.addConstraint(Sketcher.Constraint("Coincident", 5, 2, 6, 1))
sketch7.addConstraint(Sketcher.Constraint("Coincident", 6, 2, 7, 1))
sketch7.addConstraint(Sketcher.Constraint("Coincident", 7, 2, 4, 1))
sketch7.addConstraint(Sketcher.Constraint("Coincident", 8, 2, 9, 1))
sketch7.addConstraint(Sketcher.Constraint("Coincident", 9, 2, 10, 1))
sketch7.addConstraint(Sketcher.Constraint("Coincident", 10, 2, 11, 1))
sketch7.addConstraint(Sketcher.Constraint("Coincident", 11, 2, 8, 1))
sketch7.addConstraint(Sketcher.Constraint("Coincident", 12, 2, 13, 1))
sketch7.addConstraint(Sketcher.Constraint("Coincident", 13, 2, 14, 1))
sketch7.addConstraint(Sketcher.Constraint("Coincident", 14, 2, 15, 1))
sketch7.addConstraint(Sketcher.Constraint("Coincident", 15, 2, 12, 1))
sketch7.addConstraint(Sketcher.Constraint("Vertical", 0))
sketch7.addConstraint(Sketcher.Constraint("Horizontal", 1))
sketch7.addConstraint(Sketcher.Constraint("Vertical", 2))
sketch7.addConstraint(Sketcher.Constraint("Horizontal", 3))
sketch7.addConstraint(Sketcher.Constraint("Vertical", 4))
sketch7.addConstraint(Sketcher.Constraint("Horizontal", 5))
sketch7.addConstraint(Sketcher.Constraint("Vertical", 6))
sketch7.addConstraint(Sketcher.Constraint("Horizontal", 7))
sketch7.addConstraint(Sketcher.Constraint("Vertical", 8))
sketch7.addConstraint(Sketcher.Constraint("Horizontal", 9))
sketch7.addConstraint(Sketcher.Constraint("Vertical", 10))
sketch7.addConstraint(Sketcher.Constraint("Horizontal", 11))
sketch7.addConstraint(Sketcher.Constraint("Vertical", 12))
sketch7.addConstraint(Sketcher.Constraint("Horizontal", 13))
sketch7.addConstraint(Sketcher.Constraint("Vertical", 14))
sketch7.addConstraint(Sketcher.Constraint("Horizontal", 15))
sketch7.addConstraint(Sketcher.Constraint("Symmetric", 2, 2, 8, 2, -1, 1))
sketch7.addConstraint(Sketcher.Constraint("Symmetric", 0, 2, 10, 2, -1, 1))
sketch7.addConstraint(Sketcher.Constraint("Symmetric", 6, 2, 12, 2, -1, 1))
sketch7.addConstraint(Sketcher.Constraint("Symmetric", 4, 2, 14, 2, -1, 1))
sketch7.addConstraint(Sketcher.Constraint("Symmetric", 1, 2, 4, 2, -2))
sketch7.addConstraint(Sketcher.Constraint("Symmetric", 3, 2, 6, 2, -2))
sketch7.addConstraint(Sketcher.Constraint("DistanceX", 1, 1, 1, 2, Q("2 mm")))
sketch7.addConstraint(Sketcher.Constraint("DistanceY", 0, 2, 0, 1, Q("6 mm")))
sketch7.addConstraint(Sketcher.Constraint("DistanceX", 0, 2, -1, 1, Q("22 mm")))
sketch7.addConstraint(Sketcher.Constraint("DistanceY", -1, 1, 0, 2, Q("11 mm")))
sketch7.setExpression("Constraints[38]", "Params.sketch7_width")
sketch7.setExpression("Constraints[39]", "Params.sketch7_height")
pad2 = body.newObject("PartDesign::Pad", "Pad001")
pad2.Profile = sketch7
pad2.setExpression("Length", "Params.pad2_length")
pad2.Reversed = True

sketch8 = body.newObject("Sketcher::SketchObject", "Sketch007")
sketch8.AttachmentSupport = (doc.getObject("XY_Plane"), [""])
sketch8.MapMode = "FlatFace"
sketch8.AttachmentOffset = App.Placement(Vector(0, 0, 6), App.Rotation())
sketch8.addGeometry(Part.Circle(Vector(-19.2, 11.8, 0), Vector(0, 0, 1), 1.25), False)
sketch8.addGeometry(Part.Circle(Vector(-12.8, 11.8, 0), Vector(0, 0, 1), 1.25), False)
sketch8.addGeometry(Part.Circle(Vector(12.8, 11.8, 0), Vector(0, 0, 1), 1.25), False)
sketch8.addGeometry(Part.Circle(Vector(19.2, 11.8, 0), Vector(0, 0, 1), 1.25), False)
sketch8.addGeometry(Part.Circle(Vector(19.2, -11.8, 0), Vector(0, 0, 1), 1.25), False)
sketch8.addGeometry(Part.Circle(Vector(12.8, -11.8, 0), Vector(0, 0, 1), 1.25), False)
sketch8.addGeometry(Part.Circle(Vector(-12.8, -11.8, 0), Vector(0, 0, 1), 1.25), False)
sketch8.addGeometry(Part.Circle(Vector(-19.2, -11.8, 0), Vector(0, 0, 1), 1.25), False)
sketch8.addConstraint(Sketcher.Constraint("Equal", 0, 1))
sketch8.addConstraint(Sketcher.Constraint("Equal", 1, 2))
sketch8.addConstraint(Sketcher.Constraint("Equal", 2, 3))
sketch8.addConstraint(Sketcher.Constraint("Equal", 3, 4))
sketch8.addConstraint(Sketcher.Constraint("Equal", 4, 5))
sketch8.addConstraint(Sketcher.Constraint("Equal", 5, 6))
sketch8.addConstraint(Sketcher.Constraint("Equal", 6, 7))
sketch8.addConstraint(Sketcher.Constraint("Symmetric", 0, 3, 4, 3, -1, 1))
sketch8.addConstraint(Sketcher.Constraint("Symmetric", 1, 3, 5, 3, -1, 1))
sketch8.addConstraint(Sketcher.Constraint("Symmetric", 2, 3, 6, 3, -1, 1))
sketch8.addConstraint(Sketcher.Constraint("Symmetric", 3, 3, 7, 3, -1, 1))
sketch8.addConstraint(Sketcher.Constraint("Symmetric", 1, 3, 2, 3, -2))
sketch8.addConstraint(Sketcher.Constraint("Symmetric", 0, 3, 3, 3, -2))
sketch8.addConstraint(Sketcher.Constraint("Horizontal", 0, 3, 1, 3))
sketch8.addConstraint(Sketcher.Constraint("Diameter", 0, Q("2.5 mm")))
sketch8.addConstraint(Sketcher.Constraint("DistanceX", 0, 3, 2, 3, Q("32 mm")))
sketch8.addConstraint(Sketcher.Constraint("DistanceX", 0, 3, -1, 1, Q("19.2 mm")))
sketch8.addConstraint(Sketcher.Constraint("DistanceY", -1, 1, 0, 3, Q("11.8 mm")))
sketch8.setExpression("Constraints[14]", "Params.sketch8_diameter")
pocket6 = body.newObject("PartDesign::Pocket", "Pocket005")
pocket6.Profile = sketch8
pocket6.Type = "ThroughAll"

doc.recompute()
